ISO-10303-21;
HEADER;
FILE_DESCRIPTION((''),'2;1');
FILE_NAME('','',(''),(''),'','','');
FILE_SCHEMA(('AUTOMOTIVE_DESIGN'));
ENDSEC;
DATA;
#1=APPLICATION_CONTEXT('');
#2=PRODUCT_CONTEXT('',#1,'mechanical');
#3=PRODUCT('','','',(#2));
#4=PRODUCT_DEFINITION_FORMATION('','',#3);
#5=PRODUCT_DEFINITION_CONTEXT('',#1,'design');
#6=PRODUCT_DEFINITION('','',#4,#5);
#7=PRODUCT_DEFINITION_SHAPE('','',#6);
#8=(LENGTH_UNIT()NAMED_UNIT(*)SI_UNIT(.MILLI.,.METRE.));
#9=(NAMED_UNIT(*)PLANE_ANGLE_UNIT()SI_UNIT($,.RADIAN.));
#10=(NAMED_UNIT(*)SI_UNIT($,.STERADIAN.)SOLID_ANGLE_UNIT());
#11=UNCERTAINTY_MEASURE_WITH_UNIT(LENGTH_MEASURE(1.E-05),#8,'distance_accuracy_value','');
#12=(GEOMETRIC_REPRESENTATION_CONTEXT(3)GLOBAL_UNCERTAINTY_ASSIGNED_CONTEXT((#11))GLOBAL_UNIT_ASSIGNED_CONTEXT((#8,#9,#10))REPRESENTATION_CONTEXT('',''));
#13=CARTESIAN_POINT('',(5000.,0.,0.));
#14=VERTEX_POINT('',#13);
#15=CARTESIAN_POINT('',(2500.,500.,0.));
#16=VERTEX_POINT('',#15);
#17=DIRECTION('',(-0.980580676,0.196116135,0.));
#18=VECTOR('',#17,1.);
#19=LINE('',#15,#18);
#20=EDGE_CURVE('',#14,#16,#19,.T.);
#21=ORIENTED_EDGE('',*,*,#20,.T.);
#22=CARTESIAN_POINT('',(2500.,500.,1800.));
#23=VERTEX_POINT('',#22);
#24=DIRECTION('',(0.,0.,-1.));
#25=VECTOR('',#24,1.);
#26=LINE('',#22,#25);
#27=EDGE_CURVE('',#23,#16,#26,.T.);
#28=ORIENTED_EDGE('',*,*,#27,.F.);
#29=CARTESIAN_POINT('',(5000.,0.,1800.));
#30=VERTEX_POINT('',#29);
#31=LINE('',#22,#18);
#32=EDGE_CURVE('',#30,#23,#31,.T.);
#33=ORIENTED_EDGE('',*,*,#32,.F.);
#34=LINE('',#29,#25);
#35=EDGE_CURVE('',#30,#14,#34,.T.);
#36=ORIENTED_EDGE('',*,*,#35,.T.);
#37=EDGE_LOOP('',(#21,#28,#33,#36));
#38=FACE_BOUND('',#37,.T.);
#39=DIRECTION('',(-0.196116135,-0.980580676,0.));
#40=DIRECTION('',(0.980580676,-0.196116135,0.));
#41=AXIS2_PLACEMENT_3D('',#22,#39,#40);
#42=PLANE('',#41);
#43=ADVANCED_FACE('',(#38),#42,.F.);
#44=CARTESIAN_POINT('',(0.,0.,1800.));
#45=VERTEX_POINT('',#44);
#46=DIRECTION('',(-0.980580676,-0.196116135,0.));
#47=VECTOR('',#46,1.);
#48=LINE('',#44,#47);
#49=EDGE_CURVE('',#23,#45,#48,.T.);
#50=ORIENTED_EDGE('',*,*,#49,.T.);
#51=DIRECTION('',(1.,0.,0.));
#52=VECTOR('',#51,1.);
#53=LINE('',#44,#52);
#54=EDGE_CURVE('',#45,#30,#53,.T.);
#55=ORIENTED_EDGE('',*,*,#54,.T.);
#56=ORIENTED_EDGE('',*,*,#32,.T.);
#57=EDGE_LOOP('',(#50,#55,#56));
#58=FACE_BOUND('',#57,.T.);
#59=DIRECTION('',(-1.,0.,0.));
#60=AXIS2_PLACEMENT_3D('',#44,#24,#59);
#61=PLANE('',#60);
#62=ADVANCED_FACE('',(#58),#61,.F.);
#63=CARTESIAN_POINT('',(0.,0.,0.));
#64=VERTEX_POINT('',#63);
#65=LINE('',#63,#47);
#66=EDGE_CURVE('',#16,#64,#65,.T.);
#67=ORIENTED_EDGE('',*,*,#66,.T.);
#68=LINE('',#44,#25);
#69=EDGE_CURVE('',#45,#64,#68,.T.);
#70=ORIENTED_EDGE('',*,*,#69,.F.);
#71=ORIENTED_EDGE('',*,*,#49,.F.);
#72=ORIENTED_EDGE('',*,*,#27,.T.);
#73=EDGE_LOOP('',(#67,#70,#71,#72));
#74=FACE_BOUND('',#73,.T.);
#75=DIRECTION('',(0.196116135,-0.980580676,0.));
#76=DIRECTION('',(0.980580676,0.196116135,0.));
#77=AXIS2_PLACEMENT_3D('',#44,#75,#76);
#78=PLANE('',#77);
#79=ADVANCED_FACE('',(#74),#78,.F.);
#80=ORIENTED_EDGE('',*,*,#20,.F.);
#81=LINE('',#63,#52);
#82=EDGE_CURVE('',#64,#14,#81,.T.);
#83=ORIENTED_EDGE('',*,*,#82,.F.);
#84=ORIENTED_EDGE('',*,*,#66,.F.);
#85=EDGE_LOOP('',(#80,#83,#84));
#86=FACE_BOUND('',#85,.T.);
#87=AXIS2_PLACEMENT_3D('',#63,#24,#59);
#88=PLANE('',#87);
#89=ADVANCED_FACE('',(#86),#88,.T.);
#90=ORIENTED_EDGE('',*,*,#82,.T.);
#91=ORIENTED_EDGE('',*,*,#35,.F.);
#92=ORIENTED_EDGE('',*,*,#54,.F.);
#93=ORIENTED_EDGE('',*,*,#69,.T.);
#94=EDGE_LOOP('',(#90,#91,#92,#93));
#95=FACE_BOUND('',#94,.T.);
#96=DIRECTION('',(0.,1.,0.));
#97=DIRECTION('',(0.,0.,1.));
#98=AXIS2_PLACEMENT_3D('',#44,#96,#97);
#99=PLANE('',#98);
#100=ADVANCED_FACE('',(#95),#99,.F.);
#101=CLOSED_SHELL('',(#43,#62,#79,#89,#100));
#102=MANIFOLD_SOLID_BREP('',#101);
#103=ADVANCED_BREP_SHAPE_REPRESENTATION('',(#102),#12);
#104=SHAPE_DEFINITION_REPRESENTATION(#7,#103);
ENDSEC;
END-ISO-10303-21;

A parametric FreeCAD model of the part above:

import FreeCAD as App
import Part
import Sketcher
from FreeCAD import Vector
Q = App.Units.Quantity

doc = App.newDocument("Part")
body = doc.addObject("PartDesign::Body", "Body")

# Sketch on XY plane
sketch1 = body.newObject("Sketcher::SketchObject", "Sketch")
sketch1.AttachmentSupport = (doc.getObject("XY_Plane"), [""])
sketch1.MapMode = "FlatFace"
sketch1.addGeometry([
    Part.LineSegment(Vector(0, 0, 0), Vector(5000, 0, 0)),
    Part.LineSegment(Vector(5000, 0, 0), Vector(2500, 500, 0)),
    Part.LineSegment(Vector(2500, 500, 0), Vector(0, 0, 0)),
], False)
sketch1.addConstraint([
    Sketcher.Constraint("Coincident", 0, 2, 1, 1),
    Sketcher.Constraint("Coincident", 1, 2, 2, 1),
    Sketcher.Constraint("Coincident", 2, 2, 0, 1),
    Sketcher.Constraint("Horizontal", 0),
    Sketcher.Constraint("Coincident", 2, 2, -1, 1),
    Sketcher.Constraint("Equal", 1, 2),
    Sketcher.Constraint("DistanceX", 0, 1, 0, 2, Q("5000 mm")),
    Sketcher.Constraint("DistanceY", -1, 1, 1, 2, Q("500 mm")),
])
pad1 = body.newObject("PartDesign::Pad", "Pad")
pad1.Profile = sketch1
pad1.Length = 1800

doc.recompute()
